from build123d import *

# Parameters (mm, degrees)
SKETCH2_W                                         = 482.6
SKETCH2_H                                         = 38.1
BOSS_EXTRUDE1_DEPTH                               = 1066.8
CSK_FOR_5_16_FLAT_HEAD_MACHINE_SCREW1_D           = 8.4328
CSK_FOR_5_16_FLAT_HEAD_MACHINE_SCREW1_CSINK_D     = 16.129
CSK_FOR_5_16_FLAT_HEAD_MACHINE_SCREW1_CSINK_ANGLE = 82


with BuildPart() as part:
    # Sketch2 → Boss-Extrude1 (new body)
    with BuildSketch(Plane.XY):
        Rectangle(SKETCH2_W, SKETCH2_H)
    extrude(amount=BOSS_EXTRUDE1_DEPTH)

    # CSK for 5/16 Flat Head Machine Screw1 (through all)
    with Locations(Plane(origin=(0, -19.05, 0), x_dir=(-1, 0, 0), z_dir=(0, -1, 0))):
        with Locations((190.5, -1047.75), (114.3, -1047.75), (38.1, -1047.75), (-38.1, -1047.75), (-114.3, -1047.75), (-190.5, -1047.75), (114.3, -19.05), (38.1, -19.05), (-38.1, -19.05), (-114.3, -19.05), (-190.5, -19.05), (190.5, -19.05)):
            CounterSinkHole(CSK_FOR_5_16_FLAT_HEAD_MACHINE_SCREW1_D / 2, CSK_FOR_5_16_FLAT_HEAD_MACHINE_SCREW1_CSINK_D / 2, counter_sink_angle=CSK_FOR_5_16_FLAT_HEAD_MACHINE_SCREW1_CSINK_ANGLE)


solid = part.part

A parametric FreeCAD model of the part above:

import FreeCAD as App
import Part
import Sketcher
Q = App.Units.Quantity

doc = App.newDocument("Part")
body = doc.addObject("PartDesign::Body", "Body")

# Sketch on XY plane
sketch1 = doc.addObject("Sketcher::SketchObject", "Sketch")
body.addObject(sketch1)
sketch1.AttachmentSupport = (doc.XY_Plane, [""])
sketch1.MapMode = "FlatFace"
sketch1.addGeometry([
    Part.LineSegment(App.Vector(-241, 19, 0), App.Vector(-241, -19, 0)),
    Part.LineSegment(App.Vector(-241, -19, 0), App.Vector(241, -19, 0)),
    Part.LineSegment(App.Vector(241, -19, 0), App.Vector(241, 19, 0)),
    Part.LineSegment(App.Vector(241, 19, 0), App.Vector(-241, 19, 0)),
], False)
sketch1.addConstraint([
    Sketcher.Constraint("Coincident", 0, 2, 1, 1),
    Sketcher.Constraint("Coincident", 1, 2, 2, 1),
    Sketcher.Constraint("Coincident", 2, 2, 3, 1),
    Sketcher.Constraint("Coincident", 3, 2, 0, 1),
    Sketcher.Constraint("Vertical", 0),
    Sketcher.Constraint("Horizontal", 1),
    Sketcher.Constraint("Vertical", 2),
    Sketcher.Constraint("Horizontal", 3),
    Sketcher.Constraint("Symmetric", 0, 2, 2, 2, -1, 1),
    Sketcher.Constraint("DistanceX", 1, 1, 1, 2, Q("19 in")),
    Sketcher.Constraint("DistanceY", 0, 2, 0, 1, Q("1.5 in")),
])
pad1 = doc.addObject("PartDesign::Pad", "Pad")
body.addObject(pad1)
pad1.Profile = sketch1
pad1.Length = Q("42 in")

# Sketch on XZ plane
sketch2 = doc.addObject("Sketcher::SketchObject", "Sketch001")
body.addObject(sketch2)
sketch2.AttachmentSupport = (doc.XZ_Plane, [""])
sketch2.MapMode = "FlatFace"
sketch2.AttachmentOffset = App.Placement(App.Vector(0, 0, 0.75 * 25.4), App.Rotation())
sketch2.addGeometry([
    Part.Circle(App.Vector(-190.5, 1047.8, 0), App.Vector(0, 0, 1), 4.2),  # 0
    Part.Circle(App.Vector(-114.3, 1047.8, 0), App.Vector(0, 0, 1), 4.2),  # 1
    Part.Circle(App.Vector(-38.1, 1047.8, 0), App.Vector(0, 0, 1), 4.2),  # 2
    Part.Circle(App.Vector(38.1, 1047.8, 0), App.Vector(0, 0, 1), 4.2),  # 3
    Part.Circle(App.Vector(114.3, 1047.8, 0), App.Vector(0, 0, 1), 4.2),  # 4
    Part.Circle(App.Vector(190.5, 1047.8, 0), App.Vector(0, 0, 1), 4.2),  # 5
    Part.Circle(App.Vector(-114.3, 19.1, 0), App.Vector(0, 0, 1), 4.2),  # 6
    Part.Circle(App.Vector(-38.1, 19.1, 0), App.Vector(0, 0, 1), 4.2),  # 7
    Part.Circle(App.Vector(38.1, 19.1, 0), App.Vector(0, 0, 1), 4.2),  # 8
    Part.Circle(App.Vector(114.3, 19.1, 0), App.Vector(0, 0, 1), 4.2),  # 9
    Part.Circle(App.Vector(190.5, 19.1, 0), App.Vector(0, 0, 1), 4.2),  # 10
    Part.Circle(App.Vector(-190.5, 19.1, 0), App.Vector(0, 0, 1), 4.2),  # 11
], False)
sketch2.addConstraint([
    Sketcher.Constraint("Equal", 0, 1),
    Sketcher.Constraint("Equal", 1, 2),
    Sketcher.Constraint("Equal", 2, 3),
    Sketcher.Constraint("Equal", 3, 4),
    Sketcher.Constraint("Equal", 4, 5),
    Sketcher.Constraint("Equal", 5, 6),
    Sketcher.Constraint("Equal", 6, 7),
    Sketcher.Constraint("Equal", 7, 8),
    Sketcher.Constraint("Equal", 8, 9),
    Sketcher.Constraint("Equal", 9, 10),
    Sketcher.Constraint("Equal", 10, 11),
    Sketcher.Constraint("Symmetric", 2, 3, 3, 3, -2),
    Sketcher.Constraint("Symmetric", 1, 3, 4, 3, -2),
    Sketcher.Constraint("Symmetric", 0, 3, 5, 3, -2),
    Sketcher.Constraint("Symmetric", 7, 3, 8, 3, -2),
    Sketcher.Constraint("Symmetric", 6, 3, 9, 3, -2),
    Sketcher.Constraint("Symmetric", 10, 3, 11, 3, -2),
    Sketcher.Constraint("Horizontal", 0, 3, 1, 3),
    Sketcher.Constraint("Horizontal", 1, 3, 2, 3),
    Sketcher.Constraint("Horizontal", 6, 3, 7, 3),
    Sketcher.Constraint("Horizontal", 9, 3, 10, 3),
    Sketcher.Constraint("Vertical", 1, 3, 6, 3),
    Sketcher.Constraint("Vertical", 2, 3, 7, 3),
    Sketcher.Constraint("Vertical", 5, 3, 10, 3),
    Sketcher.Constraint("Diameter", 0, Q("0.332 in")),
    Sketcher.Constraint("DistanceX", 0, 3, 1, 3, Q("3 in")),
    Sketcher.Constraint("DistanceX", 1, 3, 2, 3, Q("3 in")),
    Sketcher.Constraint("DistanceX", 2, 3, 3, 3, Q("3 in")),
    Sketcher.Constraint("DistanceY", 6, 3, 1, 3, Q("40.5 in")),
    Sketcher.Constraint("DistanceY", -1, 1, 0, 3, Q("41.25 in")),
])
doc.recompute()
hole = doc.addObject("PartDesign::Hole", "Hole")
body.addObject(hole)
hole.Profile = sketch2
hole.ThreadType = "None"
hole.Diameter = Q("0.332 in")
hole.DepthType = "ThroughAll"
hole.HoleCutType = "Countersink"
hole.HoleCutDiameter = Q("0.635 in")
hole.HoleCutCountersinkAngle = 82

doc.recompute()
